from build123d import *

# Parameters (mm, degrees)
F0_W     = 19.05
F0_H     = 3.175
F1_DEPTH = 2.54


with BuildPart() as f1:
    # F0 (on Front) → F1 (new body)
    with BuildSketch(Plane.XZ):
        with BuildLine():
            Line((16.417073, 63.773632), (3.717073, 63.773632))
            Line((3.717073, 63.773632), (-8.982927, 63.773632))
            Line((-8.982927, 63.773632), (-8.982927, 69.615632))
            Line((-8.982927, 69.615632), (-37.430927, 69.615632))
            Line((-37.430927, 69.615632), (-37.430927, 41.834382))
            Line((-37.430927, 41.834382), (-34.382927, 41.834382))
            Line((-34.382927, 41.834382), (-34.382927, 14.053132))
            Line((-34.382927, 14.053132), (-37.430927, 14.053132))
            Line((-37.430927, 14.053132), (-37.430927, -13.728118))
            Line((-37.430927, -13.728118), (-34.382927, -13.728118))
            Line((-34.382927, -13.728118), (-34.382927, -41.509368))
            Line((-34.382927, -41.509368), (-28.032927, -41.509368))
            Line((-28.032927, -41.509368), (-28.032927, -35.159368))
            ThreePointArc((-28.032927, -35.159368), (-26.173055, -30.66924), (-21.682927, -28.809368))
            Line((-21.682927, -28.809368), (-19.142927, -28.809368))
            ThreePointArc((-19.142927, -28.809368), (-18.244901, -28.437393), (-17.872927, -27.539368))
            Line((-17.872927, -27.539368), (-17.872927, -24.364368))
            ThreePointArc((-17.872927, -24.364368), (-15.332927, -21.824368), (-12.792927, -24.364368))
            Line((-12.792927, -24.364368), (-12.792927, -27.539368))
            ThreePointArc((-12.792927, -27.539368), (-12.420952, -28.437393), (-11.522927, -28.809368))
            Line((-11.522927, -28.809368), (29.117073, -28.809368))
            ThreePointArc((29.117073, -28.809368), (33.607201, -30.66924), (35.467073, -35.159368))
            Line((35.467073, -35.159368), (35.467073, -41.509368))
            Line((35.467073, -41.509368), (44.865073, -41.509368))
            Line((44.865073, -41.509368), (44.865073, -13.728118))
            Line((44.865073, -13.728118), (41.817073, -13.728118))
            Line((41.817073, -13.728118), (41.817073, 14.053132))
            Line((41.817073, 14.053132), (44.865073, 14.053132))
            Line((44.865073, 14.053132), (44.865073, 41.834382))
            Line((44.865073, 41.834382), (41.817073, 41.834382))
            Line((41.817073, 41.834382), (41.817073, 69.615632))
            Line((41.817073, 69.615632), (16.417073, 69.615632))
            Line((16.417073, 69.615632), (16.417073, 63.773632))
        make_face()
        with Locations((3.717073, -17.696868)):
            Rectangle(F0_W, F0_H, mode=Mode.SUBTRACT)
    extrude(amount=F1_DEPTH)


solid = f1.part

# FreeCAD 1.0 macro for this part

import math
import FreeCAD as App
import Part
import Sketcher
Q = App.Units.Quantity


def add_polygon(sketch, points):
    """Adds a closed chain of lines whose ends are joined by coincident constraints."""
    first, n = sketch.GeometryCount, len(points)
    for a, b in zip(points, points[1:] + points[:1]):
        sketch.addGeometry(Part.LineSegment(App.Vector(*a, 0), App.Vector(*b, 0)), False)
    for i in range(n):
        sketch.addConstraint(Sketcher.Constraint("Coincident", first + i, 2, first + (i + 1) % n, 1))

doc = App.newDocument("Part")
params = doc.addObject("Spreadsheet::Sheet", "Params")
for row, (alias, value) in enumerate([
    ("sketch1_radius", "0.1 in"),
    ("sketch1_width", "1 in"),
    ("sketch1_radius2", "0.25 in"),
    ("sketch1_radius3", "0.05 in"),
    ("sketch1_width2", "0.1 in"),
    ("pad1_length", "0.1 in"),
], start=1):
    params.set(f"A{row}", alias)
    params.set(f"B{row}", "=" + value)
    params.setAlias(f"B{row}", alias)

body = doc.addObject("PartDesign::Body", "Body")

# Sketch on XZ plane
sketch1 = body.newObject("Sketcher::SketchObject", "Sketch")
sketch1.AttachmentSupport = (doc.getObject("XZ_Plane"), [""])
sketch1.MapMode = "FlatFace"
sketch1.addGeometry(Part.LineSegment(App.Vector(16.417073, 63.773632, 0), App.Vector(-8.982927, 63.773632, 0)), False)  # 0
sketch1.addGeometry(Part.LineSegment(App.Vector(-8.982927, 63.773632, 0), App.Vector(-8.982927, 69.615632, 0)), False)  # 1
sketch1.addGeometry(Part.LineSegment(App.Vector(-8.982927, 69.615632, 0), App.Vector(-37.430927, 69.615632, 0)), False)  # 2
sketch1.addGeometry(Part.LineSegment(App.Vector(-37.430927, 69.615632, 0), App.Vector(-37.430927, 41.834382, 0)), False)  # 3
sketch1.addGeometry(Part.LineSegment(App.Vector(-37.430927, 41.834382, 0), App.Vector(-34.382927, 41.834382, 0)), False)  # 4
sketch1.addGeometry(Part.LineSegment(App.Vector(-34.382927, 41.834382, 0), App.Vector(-34.382927, 14.053132, 0)), False)  # 5
sketch1.addGeometry(Part.LineSegment(App.Vector(-34.382927, 14.053132, 0), App.Vector(-37.430927, 14.053132, 0)), False)  # 6
sketch1.addGeometry(Part.LineSegment(App.Vector(-37.430927, 14.053132, 0), App.Vector(-37.430927, -13.728118, 0)), False)  # 7
sketch1.addGeometry(Part.LineSegment(App.Vector(-37.430927, -13.728118, 0), App.Vector(-34.382927, -13.728118, 0)), False)  # 8
sketch1.addGeometry(Part.LineSegment(App.Vector(-34.382927, -13.728118, 0), App.Vector(-34.382927, -41.509368, 0)), False)  # 9
sketch1.addGeometry(Part.LineSegment(App.Vector(-34.382927, -41.509368, 0), App.Vector(-28.032927, -41.509368, 0)), False)  # 10
sketch1.addGeometry(Part.LineSegment(App.Vector(-28.032927, -41.509368, 0), App.Vector(-28.032927, -35.159368, 0)), False)  # 11
sketch1.addGeometry(Part.ArcOfCircle(Part.Circle(App.Vector(-21.682927, -35.159368, 0), App.Vector(0, 0, 1), 6.35), math.radians(90.000002), math.radians(179.999998)), False)  # 12
sketch1.addGeometry(Part.LineSegment(App.Vector(-21.682927, -28.809368, 0), App.Vector(-19.142927, -28.809368, 0)), False)  # 13
sketch1.addGeometry(Part.ArcOfCircle(Part.Circle(App.Vector(-19.142927, -27.539368, 0), App.Vector(0, 0, 1), 1.27), math.radians(-89.999983), math.radians(-0.000017)), False)  # 14
sketch1.addGeometry(Part.LineSegment(App.Vector(-17.872927, -27.539368, 0), App.Vector(-17.872927, -24.364368, 0)), False)  # 15
sketch1.addGeometry(Part.ArcOfCircle(Part.Circle(App.Vector(-15.332927, -24.364368, 0), App.Vector(0, 0, 1), 2.54), math.radians(0), math.radians(180)), False)  # 16
sketch1.addGeometry(Part.LineSegment(App.Vector(-12.792927, -24.364368, 0), App.Vector(-12.792927, -27.539368, 0)), False)  # 17
sketch1.addGeometry(Part.ArcOfCircle(Part.Circle(App.Vector(-11.522925, -27.539366, 0), App.Vector(0, 0, 1), 1.270002), math.radians(-179.999906), math.radians(-90.000094)), False)  # 18
sketch1.addGeometry(Part.LineSegment(App.Vector(-11.522927, -28.809368, 0), App.Vector(29.117073, -28.809368, 0)), False)  # 19
sketch1.addGeometry(Part.ArcOfCircle(Part.Circle(App.Vector(29.117073, -35.159368, 0), App.Vector(0, 0, 1), 6.35), math.radians(0.000002), math.radians(89.999998)), False)  # 20
sketch1.addGeometry(Part.LineSegment(App.Vector(35.467073, -35.159368, 0), App.Vector(35.467073, -41.509368, 0)), False)  # 21
sketch1.addGeometry(Part.LineSegment(App.Vector(35.467073, -41.509368, 0), App.Vector(44.865073, -41.509368, 0)), False)  # 22
sketch1.addGeometry(Part.LineSegment(App.Vector(44.865073, -41.509368, 0), App.Vector(44.865073, -13.728118, 0)), False)  # 23
sketch1.addGeometry(Part.LineSegment(App.Vector(44.865073, -13.728118, 0), App.Vector(41.817073, -13.728118, 0)), False)  # 24
sketch1.addGeometry(Part.LineSegment(App.Vector(41.817073, -13.728118, 0), App.Vector(41.817073, 14.053132, 0)), False)  # 25
sketch1.addGeometry(Part.LineSegment(App.Vector(41.817073, 14.053132, 0), App.Vector(44.865073, 14.053132, 0)), False)  # 26
sketch1.addGeometry(Part.LineSegment(App.Vector(44.865073, 14.053132, 0), App.Vector(44.865073, 41.834382, 0)), False)  # 27
sketch1.addGeometry(Part.LineSegment(App.Vector(44.865073, 41.834382, 0), App.Vector(41.817073, 41.834382, 0)), False)  # 28
sketch1.addGeometry(Part.LineSegment(App.Vector(41.817073, 41.834382, 0), App.Vector(41.817073, 69.615632, 0)), False)  # 29
sketch1.addGeometry(Part.LineSegment(App.Vector(41.817073, 69.615632, 0), App.Vector(16.417073, 69.615632, 0)), False)  # 30
sketch1.addGeometry(Part.LineSegment(App.Vector(16.417073, 69.615632, 0), App.Vector(16.417073, 63.773632, 0)), False)  # 31
add_polygon(sketch1, [(13.242073, -19.284368), (-5.807927, -19.284368), (-5.807927, -16.109368), (13.242073, -16.109368)])  # lines 32-35
sketch1.addConstraint([
    Sketcher.Constraint("Coincident", 0, 2, 1, 1),
    Sketcher.Constraint("Coincident", 1, 2, 2, 1),
    Sketcher.Constraint("Coincident", 2, 2, 3, 1),
    Sketcher.Constraint("Coincident", 3, 2, 4, 1),
    Sketcher.Constraint("Coincident", 4, 2, 5, 1),
    Sketcher.Constraint("Coincident", 5, 2, 6, 1),
    Sketcher.Constraint("Coincident", 6, 2, 7, 1),
    Sketcher.Constraint("Coincident", 7, 2, 8, 1),
    Sketcher.Constraint("Coincident", 8, 2, 9, 1),
    Sketcher.Constraint("Coincident", 9, 2, 10, 1),
    Sketcher.Constraint("Coincident", 10, 2, 11, 1),
    Sketcher.Constraint("Tangent", 11, 2, 12, 2),
    Sketcher.Constraint("Tangent", 12, 1, 13, 1),
    Sketcher.Constraint("Tangent", 13, 2, 14, 1),
    Sketcher.Constraint("Tangent", 14, 2, 15, 1),
    Sketcher.Constraint("Tangent", 15, 2, 16, 2),
    Sketcher.Constraint("Tangent", 16, 1, 17, 1),
    Sketcher.Constraint("Tangent", 17, 2, 18, 1),
    Sketcher.Constraint("Tangent", 18, 2, 19, 1),
    Sketcher.Constraint("Tangent", 19, 2, 20, 2),
    Sketcher.Constraint("Tangent", 20, 1, 21, 1),
    Sketcher.Constraint("Coincident", 21, 2, 22, 1),
    Sketcher.Constraint("Coincident", 22, 2, 23, 1),
    Sketcher.Constraint("Coincident", 23, 2, 24, 1),
    Sketcher.Constraint("Coincident", 24, 2, 25, 1),
    Sketcher.Constraint("Coincident", 25, 2, 26, 1),
    Sketcher.Constraint("Coincident", 26, 2, 27, 1),
    Sketcher.Constraint("Coincident", 27, 2, 28, 1),
    Sketcher.Constraint("Coincident", 28, 2, 29, 1),
    Sketcher.Constraint("Coincident", 29, 2, 30, 1),
    Sketcher.Constraint("Coincident", 30, 2, 31, 1),
    Sketcher.Constraint("Coincident", 31, 2, 0, 1),
    Sketcher.Constraint("Horizontal", 0),
    Sketcher.Constraint("Vertical", 1),
    Sketcher.Constraint("Horizontal", 2),
    Sketcher.Constraint("Vertical", 3),
    Sketcher.Constraint("Horizontal", 4),
    Sketcher.Constraint("Vertical", 5),
    Sketcher.Constraint("Horizontal", 6),
    Sketcher.Constraint("Vertical", 7),
    Sketcher.Constraint("Horizontal", 8),
    Sketcher.Constraint("Vertical", 9),
    Sketcher.Constraint("Horizontal", 10),
    Sketcher.Constraint("Vertical", 11),
    Sketcher.Constraint("Horizontal", 13),
    Sketcher.Constraint("Vertical", 15),
    Sketcher.Constraint("Vertical", 17),
    Sketcher.Constraint("Horizontal", 19),
    Sketcher.Constraint("Vertical", 21),
    Sketcher.Constraint("Horizontal", 22),
    Sketcher.Constraint("Vertical", 23),
    Sketcher.Constraint("Horizontal", 24),
    Sketcher.Constraint("Vertical", 25),
    Sketcher.Constraint("Horizontal", 26),
    Sketcher.Constraint("Vertical", 27),
    Sketcher.Constraint("Horizontal", 28),
    Sketcher.Constraint("Vertical", 29),
    Sketcher.Constraint("Horizontal", 30),
    Sketcher.Constraint("Vertical", 31),
    Sketcher.Constraint("Horizontal", 32),
    Sketcher.Constraint("Vertical", 33),
    Sketcher.Constraint("Horizontal", 34),
    Sketcher.Constraint("Vertical", 35),
    Sketcher.Constraint("Equal", 14, 18),
    Sketcher.Constraint("Equal", 12, 20),
    Sketcher.Constraint("Horizontal", 14, 3, 18, 3),
    Sketcher.Constraint("Horizontal", 10, 2, 21, 2),
    Sketcher.Constraint("Horizontal", 8, 2, 23, 2),
    Sketcher.Constraint("Horizontal", 6, 2, 25, 2),
    Sketcher.Constraint("Horizontal", 4, 2, 27, 2),
    Sketcher.Constraint("Horizontal", 2, 2, 29, 2),
    Sketcher.Constraint("Vertical", 3, 2, 6, 2),
    Sketcher.Constraint("Vertical", 5, 2, 8, 2),
    Sketcher.Constraint("Vertical", 23, 2, 26, 2),
    Sketcher.Constraint("Vertical", 25, 2, 28, 2),
    Sketcher.Constraint("Equal", 8, 24),
    Sketcher.Constraint("Equal", 0, 30),
    Sketcher.Constraint("Equal", 3, 5),
    Sketcher.Constraint("Equal", 5, 7),
    Sketcher.Constraint("Equal", 7, 9),
    Sketcher.Constraint("Equal", 10, 11),
    Sketcher.Constraint("Equal", 17, 33),
    Sketcher.Constraint("Radius", 16, Q("0.1 in")),
    Sketcher.Constraint("DistanceX", 0, 2, 0, 1, Q("1 in")),
    Sketcher.Constraint("Radius", 12, Q("0.25 in")),
    Sketcher.Constraint("Radius", 14, Q("0.05 in")),
    Sketcher.Constraint("DistanceX", 13, 1, 13, 2, Q("0.1 in")),
    Sketcher.Constraint("DistanceX", 19, 1, 19, 2, Q("1.6 in")),
    Sketcher.Constraint("DistanceX", 4, 2, 0, 2, Q("1 in")),
    Sketcher.Constraint("DistanceX", 2, 2, 2, 1, Q("1.12 in")),
    Sketcher.Constraint("DistanceX", 10, 1, 10, 2, Q("0.25 in")),
    Sketcher.Constraint("DistanceX", 32, 2, 32, 1, Q("0.75 in")),
    Sketcher.Constraint("DistanceY", 1, 1, 1, 2, Q("0.23 in")),
    Sketcher.Constraint("DistanceY", 16, 3, 1, 2, Q("3.7 in")),
    Sketcher.Constraint("DistanceY", 16, 1, 32, 2, Q("0.2 in")),
    Sketcher.Constraint("DistanceY", 19, 2, 34, 2, Q("0.5 in")),
    Sketcher.Constraint("DistanceX", 16, 1, 32, 2, Q("0.275 in")),
    Sketcher.Constraint("DistanceY", 12, 3, -1, 1, 35.159368),
    Sketcher.Constraint("DistanceX", 12, 3, -1, 1, 21.682927),
])
sketch1.setExpression("Constraints[86]", "Params.sketch1_radius")
sketch1.setExpression("Constraints[87]", "Params.sketch1_width")
sketch1.setExpression("Constraints[88]", "Params.sketch1_radius2")
sketch1.setExpression("Constraints[89]", "Params.sketch1_radius3")
sketch1.setExpression("Constraints[90]", "Params.sketch1_width2")
pad1 = body.newObject("PartDesign::Pad", "Pad")
pad1.Profile = sketch1
pad1.setExpression("Length", "Params.pad1_length")

doc.recompute()
